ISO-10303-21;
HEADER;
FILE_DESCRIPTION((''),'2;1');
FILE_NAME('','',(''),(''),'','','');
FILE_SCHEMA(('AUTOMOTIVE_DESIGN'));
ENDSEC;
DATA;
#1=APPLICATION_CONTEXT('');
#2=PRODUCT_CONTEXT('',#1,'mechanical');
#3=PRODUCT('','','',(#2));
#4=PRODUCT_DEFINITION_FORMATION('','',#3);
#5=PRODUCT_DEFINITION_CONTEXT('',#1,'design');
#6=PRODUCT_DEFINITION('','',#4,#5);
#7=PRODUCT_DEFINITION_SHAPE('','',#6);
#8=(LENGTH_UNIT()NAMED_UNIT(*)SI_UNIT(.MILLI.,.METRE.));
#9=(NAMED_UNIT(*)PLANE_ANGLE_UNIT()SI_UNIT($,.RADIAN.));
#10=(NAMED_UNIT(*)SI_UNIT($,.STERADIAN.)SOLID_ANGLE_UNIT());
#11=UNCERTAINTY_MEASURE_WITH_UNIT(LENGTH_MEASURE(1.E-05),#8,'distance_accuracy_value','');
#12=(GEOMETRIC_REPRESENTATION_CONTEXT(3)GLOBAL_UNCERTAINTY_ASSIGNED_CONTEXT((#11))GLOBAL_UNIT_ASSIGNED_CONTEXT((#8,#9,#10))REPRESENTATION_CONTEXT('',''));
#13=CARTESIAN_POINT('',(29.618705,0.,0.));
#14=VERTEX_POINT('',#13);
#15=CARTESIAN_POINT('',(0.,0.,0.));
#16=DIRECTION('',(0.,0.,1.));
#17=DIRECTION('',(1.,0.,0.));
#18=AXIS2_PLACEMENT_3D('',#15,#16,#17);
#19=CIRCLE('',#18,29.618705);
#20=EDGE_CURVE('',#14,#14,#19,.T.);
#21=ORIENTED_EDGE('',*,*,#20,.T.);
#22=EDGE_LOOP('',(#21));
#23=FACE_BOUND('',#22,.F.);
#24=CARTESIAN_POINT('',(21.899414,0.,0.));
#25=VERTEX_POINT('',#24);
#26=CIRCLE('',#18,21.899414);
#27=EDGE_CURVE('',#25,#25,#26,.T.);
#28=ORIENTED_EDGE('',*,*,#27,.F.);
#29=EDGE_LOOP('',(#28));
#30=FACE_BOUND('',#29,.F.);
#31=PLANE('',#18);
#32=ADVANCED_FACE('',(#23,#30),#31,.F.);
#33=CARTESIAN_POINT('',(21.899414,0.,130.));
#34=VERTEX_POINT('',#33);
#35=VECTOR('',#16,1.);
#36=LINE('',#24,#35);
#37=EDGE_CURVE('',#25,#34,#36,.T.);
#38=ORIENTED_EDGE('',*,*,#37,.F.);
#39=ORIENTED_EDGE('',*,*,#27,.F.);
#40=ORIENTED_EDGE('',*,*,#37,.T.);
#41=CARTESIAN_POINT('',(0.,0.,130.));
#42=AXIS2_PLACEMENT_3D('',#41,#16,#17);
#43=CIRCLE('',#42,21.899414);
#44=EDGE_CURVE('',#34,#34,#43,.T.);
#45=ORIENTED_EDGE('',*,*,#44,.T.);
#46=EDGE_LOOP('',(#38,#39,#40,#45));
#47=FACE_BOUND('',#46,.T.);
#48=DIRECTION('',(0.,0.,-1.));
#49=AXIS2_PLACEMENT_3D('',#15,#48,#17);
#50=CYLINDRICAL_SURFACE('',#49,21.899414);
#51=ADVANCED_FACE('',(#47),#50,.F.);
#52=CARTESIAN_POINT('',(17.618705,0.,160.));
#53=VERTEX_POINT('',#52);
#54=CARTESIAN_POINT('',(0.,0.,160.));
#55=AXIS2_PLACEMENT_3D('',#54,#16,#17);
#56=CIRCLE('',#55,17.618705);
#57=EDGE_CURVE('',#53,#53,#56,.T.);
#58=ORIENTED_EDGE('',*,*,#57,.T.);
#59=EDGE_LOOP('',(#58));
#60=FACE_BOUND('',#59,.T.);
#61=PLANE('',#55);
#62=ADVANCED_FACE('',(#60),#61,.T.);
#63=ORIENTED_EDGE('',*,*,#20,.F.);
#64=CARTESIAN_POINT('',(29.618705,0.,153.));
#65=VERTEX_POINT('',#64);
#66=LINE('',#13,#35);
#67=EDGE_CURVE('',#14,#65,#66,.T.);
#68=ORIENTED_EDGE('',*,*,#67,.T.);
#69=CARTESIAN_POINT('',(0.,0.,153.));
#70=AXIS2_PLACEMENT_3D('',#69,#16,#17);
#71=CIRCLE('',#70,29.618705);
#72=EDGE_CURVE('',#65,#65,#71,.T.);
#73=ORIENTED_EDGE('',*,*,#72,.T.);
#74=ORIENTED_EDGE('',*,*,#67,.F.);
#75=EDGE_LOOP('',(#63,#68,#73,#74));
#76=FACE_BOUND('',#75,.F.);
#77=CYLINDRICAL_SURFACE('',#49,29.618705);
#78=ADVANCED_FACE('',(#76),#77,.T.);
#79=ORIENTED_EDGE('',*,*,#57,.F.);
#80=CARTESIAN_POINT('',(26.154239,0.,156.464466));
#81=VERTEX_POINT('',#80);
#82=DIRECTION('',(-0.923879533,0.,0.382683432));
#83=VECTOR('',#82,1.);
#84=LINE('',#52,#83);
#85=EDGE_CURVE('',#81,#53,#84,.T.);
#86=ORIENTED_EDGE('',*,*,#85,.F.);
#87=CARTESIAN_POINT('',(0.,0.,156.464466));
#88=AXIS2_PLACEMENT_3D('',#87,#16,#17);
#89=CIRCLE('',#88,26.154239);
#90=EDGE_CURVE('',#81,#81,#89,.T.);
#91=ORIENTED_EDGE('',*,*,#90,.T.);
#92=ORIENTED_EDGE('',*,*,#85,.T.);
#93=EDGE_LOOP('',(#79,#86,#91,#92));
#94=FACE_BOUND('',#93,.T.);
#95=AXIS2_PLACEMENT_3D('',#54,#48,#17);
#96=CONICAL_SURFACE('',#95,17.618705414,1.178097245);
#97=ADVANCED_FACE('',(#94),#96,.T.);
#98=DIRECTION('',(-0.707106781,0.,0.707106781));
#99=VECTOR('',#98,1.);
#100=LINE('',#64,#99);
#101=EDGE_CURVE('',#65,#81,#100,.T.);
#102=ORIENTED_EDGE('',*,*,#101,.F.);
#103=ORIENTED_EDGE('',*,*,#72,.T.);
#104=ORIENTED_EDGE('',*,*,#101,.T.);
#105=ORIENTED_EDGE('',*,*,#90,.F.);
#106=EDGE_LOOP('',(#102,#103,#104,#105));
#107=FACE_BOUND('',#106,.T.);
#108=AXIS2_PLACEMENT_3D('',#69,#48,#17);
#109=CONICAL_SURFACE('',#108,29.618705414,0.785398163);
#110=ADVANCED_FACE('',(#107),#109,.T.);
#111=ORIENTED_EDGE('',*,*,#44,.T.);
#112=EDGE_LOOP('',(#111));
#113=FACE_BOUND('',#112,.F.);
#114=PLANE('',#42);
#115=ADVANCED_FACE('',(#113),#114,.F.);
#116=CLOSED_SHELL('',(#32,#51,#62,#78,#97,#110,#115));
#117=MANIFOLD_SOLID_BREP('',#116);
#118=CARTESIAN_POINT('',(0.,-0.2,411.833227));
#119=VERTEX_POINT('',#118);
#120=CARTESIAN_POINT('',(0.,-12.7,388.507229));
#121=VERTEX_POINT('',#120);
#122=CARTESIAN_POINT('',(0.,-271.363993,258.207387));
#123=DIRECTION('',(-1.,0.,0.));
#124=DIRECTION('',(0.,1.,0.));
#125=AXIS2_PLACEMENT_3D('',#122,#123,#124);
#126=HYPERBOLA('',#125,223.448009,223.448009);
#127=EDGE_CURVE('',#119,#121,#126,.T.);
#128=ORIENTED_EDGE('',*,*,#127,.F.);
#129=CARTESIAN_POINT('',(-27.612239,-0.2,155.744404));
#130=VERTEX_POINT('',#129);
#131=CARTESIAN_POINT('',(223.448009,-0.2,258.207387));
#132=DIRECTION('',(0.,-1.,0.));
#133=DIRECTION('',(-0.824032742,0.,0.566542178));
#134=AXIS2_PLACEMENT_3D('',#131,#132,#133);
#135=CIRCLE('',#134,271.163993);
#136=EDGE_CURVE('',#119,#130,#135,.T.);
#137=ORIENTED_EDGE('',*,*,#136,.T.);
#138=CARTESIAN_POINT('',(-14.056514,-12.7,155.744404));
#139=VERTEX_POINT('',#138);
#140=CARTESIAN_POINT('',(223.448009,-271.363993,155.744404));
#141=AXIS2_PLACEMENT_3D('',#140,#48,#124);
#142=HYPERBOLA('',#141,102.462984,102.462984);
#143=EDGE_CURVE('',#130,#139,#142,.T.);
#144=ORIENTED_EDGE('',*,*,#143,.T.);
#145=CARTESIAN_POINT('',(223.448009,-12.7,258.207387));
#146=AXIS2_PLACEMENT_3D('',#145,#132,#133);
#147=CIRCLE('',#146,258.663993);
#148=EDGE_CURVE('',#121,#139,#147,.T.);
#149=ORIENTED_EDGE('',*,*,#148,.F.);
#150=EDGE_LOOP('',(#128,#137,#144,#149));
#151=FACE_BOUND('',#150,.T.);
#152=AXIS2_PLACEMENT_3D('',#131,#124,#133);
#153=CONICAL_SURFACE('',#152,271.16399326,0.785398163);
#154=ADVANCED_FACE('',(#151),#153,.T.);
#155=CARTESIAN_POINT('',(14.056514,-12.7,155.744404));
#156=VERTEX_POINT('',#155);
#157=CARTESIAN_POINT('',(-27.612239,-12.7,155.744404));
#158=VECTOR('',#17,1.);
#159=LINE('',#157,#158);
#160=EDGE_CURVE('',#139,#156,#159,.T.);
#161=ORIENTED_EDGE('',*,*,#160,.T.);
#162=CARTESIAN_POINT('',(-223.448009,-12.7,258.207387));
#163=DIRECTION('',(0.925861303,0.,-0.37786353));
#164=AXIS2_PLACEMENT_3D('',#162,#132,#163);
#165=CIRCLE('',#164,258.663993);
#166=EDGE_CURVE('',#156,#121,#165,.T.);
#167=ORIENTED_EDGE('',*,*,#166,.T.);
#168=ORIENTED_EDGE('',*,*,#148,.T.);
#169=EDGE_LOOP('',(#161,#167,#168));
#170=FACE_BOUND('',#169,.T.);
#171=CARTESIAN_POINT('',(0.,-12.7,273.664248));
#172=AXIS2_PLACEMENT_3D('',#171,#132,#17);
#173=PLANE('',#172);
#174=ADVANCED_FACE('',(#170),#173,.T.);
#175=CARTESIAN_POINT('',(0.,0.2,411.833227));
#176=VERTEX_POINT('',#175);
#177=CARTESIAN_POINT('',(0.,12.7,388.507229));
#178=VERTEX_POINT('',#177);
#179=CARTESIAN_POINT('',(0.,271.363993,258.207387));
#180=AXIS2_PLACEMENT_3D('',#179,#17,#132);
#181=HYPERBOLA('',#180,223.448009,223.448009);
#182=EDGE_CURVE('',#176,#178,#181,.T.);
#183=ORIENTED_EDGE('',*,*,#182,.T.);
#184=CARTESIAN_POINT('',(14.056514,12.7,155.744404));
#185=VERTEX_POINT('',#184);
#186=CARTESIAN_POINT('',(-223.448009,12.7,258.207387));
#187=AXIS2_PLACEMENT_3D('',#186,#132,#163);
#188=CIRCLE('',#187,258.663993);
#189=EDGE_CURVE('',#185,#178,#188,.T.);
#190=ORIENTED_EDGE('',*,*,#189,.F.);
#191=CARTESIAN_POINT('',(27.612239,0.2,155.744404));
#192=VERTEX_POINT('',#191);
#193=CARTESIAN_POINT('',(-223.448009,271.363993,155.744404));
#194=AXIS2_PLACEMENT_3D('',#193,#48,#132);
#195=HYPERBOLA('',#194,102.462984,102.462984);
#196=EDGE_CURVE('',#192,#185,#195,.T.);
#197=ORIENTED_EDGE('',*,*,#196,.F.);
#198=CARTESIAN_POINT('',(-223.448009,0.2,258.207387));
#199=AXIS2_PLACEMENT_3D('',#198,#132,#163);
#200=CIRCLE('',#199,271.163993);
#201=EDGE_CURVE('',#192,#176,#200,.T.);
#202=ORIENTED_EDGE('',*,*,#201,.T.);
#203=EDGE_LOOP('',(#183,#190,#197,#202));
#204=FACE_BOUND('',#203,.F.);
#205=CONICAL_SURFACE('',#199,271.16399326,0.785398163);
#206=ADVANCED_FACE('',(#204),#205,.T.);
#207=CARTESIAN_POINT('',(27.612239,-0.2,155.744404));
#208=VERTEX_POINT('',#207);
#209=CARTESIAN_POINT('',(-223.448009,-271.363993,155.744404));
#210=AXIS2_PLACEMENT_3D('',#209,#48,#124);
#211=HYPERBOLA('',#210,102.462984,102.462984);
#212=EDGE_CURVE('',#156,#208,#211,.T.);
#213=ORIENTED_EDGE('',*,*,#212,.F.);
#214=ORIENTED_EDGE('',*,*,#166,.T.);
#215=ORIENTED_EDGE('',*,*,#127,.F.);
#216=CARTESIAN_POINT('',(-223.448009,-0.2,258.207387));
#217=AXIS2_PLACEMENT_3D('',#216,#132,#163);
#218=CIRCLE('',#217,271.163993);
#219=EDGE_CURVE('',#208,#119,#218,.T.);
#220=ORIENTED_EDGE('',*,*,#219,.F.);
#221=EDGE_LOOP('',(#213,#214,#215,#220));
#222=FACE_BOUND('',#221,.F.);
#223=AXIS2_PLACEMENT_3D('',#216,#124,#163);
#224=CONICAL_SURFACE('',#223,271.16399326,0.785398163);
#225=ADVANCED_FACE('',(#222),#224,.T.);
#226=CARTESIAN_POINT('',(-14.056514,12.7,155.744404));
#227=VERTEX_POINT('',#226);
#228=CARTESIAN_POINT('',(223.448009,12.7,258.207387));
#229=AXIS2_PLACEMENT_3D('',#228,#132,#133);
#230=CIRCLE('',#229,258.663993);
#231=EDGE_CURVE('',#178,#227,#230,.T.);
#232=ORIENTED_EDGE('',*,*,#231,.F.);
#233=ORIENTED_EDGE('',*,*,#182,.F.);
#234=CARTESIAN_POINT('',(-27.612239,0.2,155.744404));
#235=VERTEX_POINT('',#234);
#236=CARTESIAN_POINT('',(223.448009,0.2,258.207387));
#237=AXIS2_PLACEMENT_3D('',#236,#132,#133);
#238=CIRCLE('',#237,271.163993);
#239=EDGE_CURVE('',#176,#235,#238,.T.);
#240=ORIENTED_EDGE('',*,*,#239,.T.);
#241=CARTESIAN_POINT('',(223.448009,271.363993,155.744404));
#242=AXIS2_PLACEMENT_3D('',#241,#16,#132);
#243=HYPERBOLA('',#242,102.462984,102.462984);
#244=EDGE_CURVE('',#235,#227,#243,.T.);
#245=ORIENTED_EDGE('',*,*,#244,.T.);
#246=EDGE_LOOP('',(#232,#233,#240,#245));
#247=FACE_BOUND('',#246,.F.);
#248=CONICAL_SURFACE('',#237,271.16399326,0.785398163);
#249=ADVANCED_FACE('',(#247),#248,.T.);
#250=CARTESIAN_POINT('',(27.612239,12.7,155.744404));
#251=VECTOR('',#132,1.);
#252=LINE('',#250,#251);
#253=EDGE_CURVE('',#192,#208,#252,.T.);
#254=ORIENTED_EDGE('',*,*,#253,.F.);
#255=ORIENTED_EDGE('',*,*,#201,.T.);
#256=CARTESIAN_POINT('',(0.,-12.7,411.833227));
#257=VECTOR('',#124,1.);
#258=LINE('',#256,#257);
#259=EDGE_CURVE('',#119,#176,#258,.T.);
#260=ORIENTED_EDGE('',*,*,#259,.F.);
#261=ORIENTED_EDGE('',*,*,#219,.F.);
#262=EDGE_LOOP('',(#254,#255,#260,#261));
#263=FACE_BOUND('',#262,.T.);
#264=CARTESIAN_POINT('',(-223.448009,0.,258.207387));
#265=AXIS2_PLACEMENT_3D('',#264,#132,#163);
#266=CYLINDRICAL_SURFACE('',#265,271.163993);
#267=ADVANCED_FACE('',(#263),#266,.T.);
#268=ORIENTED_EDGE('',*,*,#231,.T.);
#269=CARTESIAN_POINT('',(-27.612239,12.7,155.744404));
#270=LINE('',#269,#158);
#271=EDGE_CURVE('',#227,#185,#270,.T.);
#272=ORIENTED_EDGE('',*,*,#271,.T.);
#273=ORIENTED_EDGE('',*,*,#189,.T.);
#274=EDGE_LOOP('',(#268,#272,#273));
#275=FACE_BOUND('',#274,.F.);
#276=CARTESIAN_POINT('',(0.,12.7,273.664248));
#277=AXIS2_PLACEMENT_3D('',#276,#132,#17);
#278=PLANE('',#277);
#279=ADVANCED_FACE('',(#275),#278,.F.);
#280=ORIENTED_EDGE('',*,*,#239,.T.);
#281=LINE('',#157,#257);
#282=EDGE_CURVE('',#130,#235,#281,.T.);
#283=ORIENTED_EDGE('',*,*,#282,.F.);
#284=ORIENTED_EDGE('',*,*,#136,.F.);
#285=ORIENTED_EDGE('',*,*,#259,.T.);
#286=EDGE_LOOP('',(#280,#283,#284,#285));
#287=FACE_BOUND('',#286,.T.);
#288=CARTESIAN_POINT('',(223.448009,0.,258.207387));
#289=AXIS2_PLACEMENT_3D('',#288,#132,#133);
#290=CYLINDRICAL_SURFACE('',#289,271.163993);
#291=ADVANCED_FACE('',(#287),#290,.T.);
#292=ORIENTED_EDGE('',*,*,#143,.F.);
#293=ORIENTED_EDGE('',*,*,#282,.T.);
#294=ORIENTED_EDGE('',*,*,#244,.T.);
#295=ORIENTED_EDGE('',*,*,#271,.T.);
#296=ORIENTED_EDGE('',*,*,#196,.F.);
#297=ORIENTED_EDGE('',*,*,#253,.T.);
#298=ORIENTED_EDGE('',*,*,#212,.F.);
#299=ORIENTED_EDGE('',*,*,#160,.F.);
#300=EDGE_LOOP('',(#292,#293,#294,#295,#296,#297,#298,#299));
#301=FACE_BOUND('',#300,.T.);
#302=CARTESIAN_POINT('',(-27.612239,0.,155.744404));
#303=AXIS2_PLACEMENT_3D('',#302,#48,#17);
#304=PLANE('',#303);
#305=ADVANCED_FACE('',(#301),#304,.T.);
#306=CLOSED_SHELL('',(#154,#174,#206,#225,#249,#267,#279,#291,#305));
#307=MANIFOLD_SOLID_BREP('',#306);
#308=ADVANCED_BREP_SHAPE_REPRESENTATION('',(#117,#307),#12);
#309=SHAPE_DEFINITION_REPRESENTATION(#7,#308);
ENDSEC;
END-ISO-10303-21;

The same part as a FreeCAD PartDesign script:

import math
import FreeCAD as App
import Part
import Sketcher

V = App.Vector
Q = App.Units.Quantity


def edges_at(feature, points):
    """Names of the edges that pass closest to the given points."""
    edges = feature.Shape.Edges
    near = lambda p: min(range(len(edges)), key=lambda i: edges[i].distToShape(Part.Vertex(*p))[0])
    return sorted({f"Edge{near(p) + 1}" for p in points})

doc = App.newDocument("Part")
params = doc.addObject("Spreadsheet::Sheet", "Params")
for row, (alias, value) in enumerate([
    ("pad1_length", "160 mm"),
    ("chamfer_size", "7 mm"),
    ("chamfer2_size", "5 mm"),
    ("pocket1_length", "130 mm"),
    ("pad2_length", "25.4 mm"),
    ("chamfer3_size", "12.5 mm"),
], start=1):
    params.set(f"A{row}", alias)
    params.set(f"B{row}", "=" + value)
    params.setAlias(f"B{row}", alias)

body = doc.addObject("PartDesign::Body", "Body")

# Sketch on XY plane
sketch1 = doc.addObject("Sketcher::SketchObject", "Sketch")
body.addObject(sketch1)
sketch1.AttachmentSupport = (doc.XY_Plane, [""])
sketch1.MapMode = "FlatFace"
sketch1.addGeometry(Part.Circle(V(0, 0, 0), V(0, 0, 1), 30), False)
sketch1.addConstraint([
    Sketcher.Constraint("Coincident", 0, 3, -1, 1),
    Sketcher.Constraint("Diameter", 0, Q("59.237411 mm")),
])
pad1 = doc.addObject("PartDesign::Pad", "Pad")
body.addObject(pad1)
pad1.Profile = sketch1
pad1.setExpression("Length", "Params.pad1_length")
doc.recompute()

chamfer = doc.addObject("PartDesign::Chamfer", "Chamfer")
body.addObject(chamfer)
chamfer.Base = (pad1, edges_at(pad1, [(-29.619, 0, 160)]))
chamfer.setExpression("Size", "Params.chamfer_size")
doc.recompute()

chamfer2 = doc.addObject("PartDesign::Chamfer", "Chamfer001")
body.addObject(chamfer2)
chamfer2.Base = (chamfer, edges_at(chamfer, [(-22.619, 0, 160)]))
chamfer2.setExpression("Size", "Params.chamfer2_size")

# Sketch on XY plane
sketch2 = doc.addObject("Sketcher::SketchObject", "Sketch001")
body.addObject(sketch2)
sketch2.AttachmentSupport = (doc.XY_Plane, [""])
sketch2.MapMode = "FlatFace"
sketch2.addGeometry(Part.Circle(V(0, 0, 0), V(0, 0, 1), 22), False)
sketch2.addConstraint([
    Sketcher.Constraint("Coincident", 0, 3, -1, 1),
    Sketcher.Constraint("Diameter", 0, Q("43.798828 mm")),
])
pocket1 = doc.addObject("PartDesign::Pocket", "Pocket")
body.addObject(pocket1)
pocket1.Profile = sketch2
pocket1.setExpression("Length", "Params.pocket1_length")
pocket1.Reversed = True
body2 = doc.addObject("PartDesign::Body", "Body001")

# Sketch on XZ plane
sketch3 = doc.addObject("Sketcher::SketchObject", "Sketch002")
body2.addObject(sketch3)
sketch3.AttachmentSupport = (doc.getObject("XZ_Plane001"), [""])
sketch3.MapMode = "FlatFace"
sketch3.addGeometry([
    Part.LineSegment(V(-28, 156, 0), V(28, 156, 0)),
    Part.ArcOfCircle(Part.Circle(V(-223, 258, 0), V(0, 0, 1), 271), math.radians(-22), math.radians(35)),
    Part.ArcOfCircle(Part.Circle(V(223, 258, 0), V(0, 0, 1), 271), math.radians(145), math.radians(202)),
], False)
sketch3.addConstraint([
    Sketcher.Constraint("Coincident", 0, 2, 1, 1),
    Sketcher.Constraint("Coincident", 1, 2, 2, 1),
    Sketcher.Constraint("Coincident", 2, 2, 0, 1),
    Sketcher.Constraint("Horizontal", 0),
    Sketcher.Constraint("Equal", 1, 2),
    Sketcher.Constraint("Symmetric", 1, 3, 2, 3, -2),
    Sketcher.Constraint("Radius", 1, Q("271.163993 mm")),
    Sketcher.Constraint("DistanceX", 0, 1, 0, 2, Q("55.224478 mm")),
    Sketcher.Constraint("DistanceX", 1, 3, -1, 1, Q("223.448009 mm")),
    Sketcher.Constraint("DistanceY", -1, 1, 1, 3, Q("258.207387 mm")),
])
pad2 = doc.addObject("PartDesign::Pad", "Pad001")
body2.addObject(pad2)
pad2.Profile = sketch3
pad2.setExpression("Length", "Params.pad2_length")
pad2.Midplane = True
doc.recompute()

chamfer3 = doc.addObject("PartDesign::Chamfer", "Chamfer002")
body2.addObject(chamfer3)
chamfer3.Base = (pad2, edges_at(pad2, [
    (-46.153, -12.7, 287.277),
    (46.153, -12.7, 287.277),
    (-46.153, 12.7, 287.277),
    (46.153, 12.7, 287.277),
]))
chamfer3.setExpression("Size", "Params.chamfer3_size")

doc.recompute()
